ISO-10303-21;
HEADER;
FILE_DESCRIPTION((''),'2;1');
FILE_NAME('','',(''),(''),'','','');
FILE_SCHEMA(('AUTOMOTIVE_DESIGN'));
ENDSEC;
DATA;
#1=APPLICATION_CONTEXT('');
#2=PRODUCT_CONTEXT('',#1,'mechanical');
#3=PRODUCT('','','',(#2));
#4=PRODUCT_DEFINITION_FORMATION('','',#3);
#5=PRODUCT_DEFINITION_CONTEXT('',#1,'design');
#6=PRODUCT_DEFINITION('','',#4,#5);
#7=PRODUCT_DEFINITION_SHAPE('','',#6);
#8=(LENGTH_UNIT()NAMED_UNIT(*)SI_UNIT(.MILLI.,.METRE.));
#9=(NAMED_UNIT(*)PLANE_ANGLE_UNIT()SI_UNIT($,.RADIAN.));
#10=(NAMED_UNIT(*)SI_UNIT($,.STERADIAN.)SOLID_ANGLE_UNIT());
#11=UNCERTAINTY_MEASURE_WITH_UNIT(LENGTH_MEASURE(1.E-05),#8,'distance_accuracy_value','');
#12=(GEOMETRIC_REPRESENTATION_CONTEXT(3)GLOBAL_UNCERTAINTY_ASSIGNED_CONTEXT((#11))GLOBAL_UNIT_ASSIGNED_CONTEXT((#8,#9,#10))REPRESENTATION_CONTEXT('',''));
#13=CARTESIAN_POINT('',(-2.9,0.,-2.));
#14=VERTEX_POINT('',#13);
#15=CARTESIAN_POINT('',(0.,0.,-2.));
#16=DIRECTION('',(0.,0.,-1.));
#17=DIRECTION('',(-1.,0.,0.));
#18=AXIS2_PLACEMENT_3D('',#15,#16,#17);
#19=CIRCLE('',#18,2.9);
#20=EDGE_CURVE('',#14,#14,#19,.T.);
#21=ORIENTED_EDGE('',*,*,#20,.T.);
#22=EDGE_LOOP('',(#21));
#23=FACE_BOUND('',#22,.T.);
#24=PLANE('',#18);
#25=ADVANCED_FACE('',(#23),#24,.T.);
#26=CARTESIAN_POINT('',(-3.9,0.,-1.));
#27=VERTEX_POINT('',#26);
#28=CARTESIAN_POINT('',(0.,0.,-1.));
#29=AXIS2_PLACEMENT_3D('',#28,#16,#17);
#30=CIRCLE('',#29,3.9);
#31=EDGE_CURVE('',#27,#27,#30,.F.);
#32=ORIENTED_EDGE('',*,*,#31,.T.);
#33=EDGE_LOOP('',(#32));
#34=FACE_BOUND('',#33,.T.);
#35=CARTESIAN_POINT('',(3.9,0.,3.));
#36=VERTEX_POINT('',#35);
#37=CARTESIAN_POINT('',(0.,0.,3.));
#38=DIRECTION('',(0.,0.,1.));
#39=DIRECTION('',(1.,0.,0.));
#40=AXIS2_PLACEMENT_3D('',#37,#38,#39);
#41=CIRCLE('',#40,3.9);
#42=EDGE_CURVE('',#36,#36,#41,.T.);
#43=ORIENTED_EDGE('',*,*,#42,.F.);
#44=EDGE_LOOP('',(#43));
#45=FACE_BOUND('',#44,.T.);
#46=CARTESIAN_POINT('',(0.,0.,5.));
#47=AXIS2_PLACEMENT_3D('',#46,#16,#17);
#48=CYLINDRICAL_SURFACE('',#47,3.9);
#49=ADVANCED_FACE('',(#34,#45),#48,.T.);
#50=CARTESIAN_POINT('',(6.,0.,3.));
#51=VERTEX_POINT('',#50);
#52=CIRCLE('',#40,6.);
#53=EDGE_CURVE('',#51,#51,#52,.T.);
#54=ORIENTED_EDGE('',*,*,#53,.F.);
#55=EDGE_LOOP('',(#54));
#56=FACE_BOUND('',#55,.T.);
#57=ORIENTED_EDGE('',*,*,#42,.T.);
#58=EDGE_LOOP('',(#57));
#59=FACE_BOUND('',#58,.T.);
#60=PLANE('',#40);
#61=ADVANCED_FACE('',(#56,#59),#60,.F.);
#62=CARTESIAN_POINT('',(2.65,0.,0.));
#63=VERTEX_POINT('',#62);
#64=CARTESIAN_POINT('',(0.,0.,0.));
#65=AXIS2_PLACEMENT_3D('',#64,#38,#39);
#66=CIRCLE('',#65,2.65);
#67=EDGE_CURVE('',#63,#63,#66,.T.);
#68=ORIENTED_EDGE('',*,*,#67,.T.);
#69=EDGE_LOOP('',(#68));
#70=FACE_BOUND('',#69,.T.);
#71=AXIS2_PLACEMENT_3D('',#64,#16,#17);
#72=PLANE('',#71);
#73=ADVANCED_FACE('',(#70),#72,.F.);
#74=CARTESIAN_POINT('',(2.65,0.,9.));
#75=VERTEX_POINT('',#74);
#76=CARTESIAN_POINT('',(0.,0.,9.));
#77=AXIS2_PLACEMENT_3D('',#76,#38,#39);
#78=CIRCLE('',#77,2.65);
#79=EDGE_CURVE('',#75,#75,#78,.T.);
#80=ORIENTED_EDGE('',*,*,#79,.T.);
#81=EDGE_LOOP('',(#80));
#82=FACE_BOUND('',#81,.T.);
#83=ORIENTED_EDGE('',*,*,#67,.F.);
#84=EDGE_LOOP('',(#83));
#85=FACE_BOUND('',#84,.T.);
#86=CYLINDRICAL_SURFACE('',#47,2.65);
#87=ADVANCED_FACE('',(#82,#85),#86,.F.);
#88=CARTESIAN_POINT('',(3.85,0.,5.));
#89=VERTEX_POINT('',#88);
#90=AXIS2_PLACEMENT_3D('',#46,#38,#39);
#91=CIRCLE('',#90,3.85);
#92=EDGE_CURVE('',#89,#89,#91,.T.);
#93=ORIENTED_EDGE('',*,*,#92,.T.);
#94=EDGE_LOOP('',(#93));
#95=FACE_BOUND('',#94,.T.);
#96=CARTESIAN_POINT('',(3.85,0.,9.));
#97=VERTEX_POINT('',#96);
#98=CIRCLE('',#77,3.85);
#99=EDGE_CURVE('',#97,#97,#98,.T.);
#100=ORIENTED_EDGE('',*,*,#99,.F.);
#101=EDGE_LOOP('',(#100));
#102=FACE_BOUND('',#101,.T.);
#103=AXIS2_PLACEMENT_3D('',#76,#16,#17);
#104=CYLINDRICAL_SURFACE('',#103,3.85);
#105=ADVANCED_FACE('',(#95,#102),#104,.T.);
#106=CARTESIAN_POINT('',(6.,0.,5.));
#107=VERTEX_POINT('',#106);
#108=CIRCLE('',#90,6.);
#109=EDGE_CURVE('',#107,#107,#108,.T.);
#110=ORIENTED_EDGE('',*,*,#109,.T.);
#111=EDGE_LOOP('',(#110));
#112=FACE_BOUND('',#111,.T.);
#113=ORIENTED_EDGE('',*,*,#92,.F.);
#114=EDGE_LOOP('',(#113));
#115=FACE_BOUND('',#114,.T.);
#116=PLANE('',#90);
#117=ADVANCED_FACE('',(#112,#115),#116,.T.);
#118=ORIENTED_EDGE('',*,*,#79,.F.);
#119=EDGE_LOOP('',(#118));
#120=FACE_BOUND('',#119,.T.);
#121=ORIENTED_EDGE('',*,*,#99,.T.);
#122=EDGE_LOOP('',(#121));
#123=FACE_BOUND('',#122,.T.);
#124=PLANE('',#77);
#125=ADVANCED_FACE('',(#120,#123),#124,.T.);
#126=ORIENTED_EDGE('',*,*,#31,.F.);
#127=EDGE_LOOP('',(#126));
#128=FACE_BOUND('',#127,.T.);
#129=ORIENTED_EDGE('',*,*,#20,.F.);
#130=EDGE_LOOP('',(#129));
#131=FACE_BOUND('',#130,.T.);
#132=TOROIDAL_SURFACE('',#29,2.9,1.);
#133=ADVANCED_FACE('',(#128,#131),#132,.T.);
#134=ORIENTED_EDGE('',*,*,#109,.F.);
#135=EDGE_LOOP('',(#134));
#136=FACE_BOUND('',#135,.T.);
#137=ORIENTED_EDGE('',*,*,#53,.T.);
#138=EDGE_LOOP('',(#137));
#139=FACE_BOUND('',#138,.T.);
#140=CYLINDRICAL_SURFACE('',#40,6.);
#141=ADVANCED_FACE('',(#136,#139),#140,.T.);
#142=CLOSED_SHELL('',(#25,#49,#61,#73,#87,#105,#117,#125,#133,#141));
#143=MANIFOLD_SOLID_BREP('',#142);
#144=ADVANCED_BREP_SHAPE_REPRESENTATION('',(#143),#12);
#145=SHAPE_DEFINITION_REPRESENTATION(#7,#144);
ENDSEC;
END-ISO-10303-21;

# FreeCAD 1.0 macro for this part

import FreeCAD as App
import Part
import Sketcher
from FreeCAD import Vector


def edges_at(feature, points):
    """Names of the edges that pass closest to the given points."""
    edges = feature.Shape.Edges
    near = lambda p: min(range(len(edges)), key=lambda i: edges[i].distToShape(Part.Vertex(*p))[0])
    return sorted({f"Edge{near(p) + 1}" for p in points})

doc = App.newDocument("Part")
body = doc.addObject("PartDesign::Body", "Body")

sketch1 = doc.addObject("Sketcher::SketchObject", "Sketch")
body.addObject(sketch1)
sketch1.AttachmentSupport = (doc.XY_Plane, [""])
sketch1.MapMode = "FlatFace"
sketch1.addGeometry(Part.Circle(Vector(0, 0, 0), Vector(0, 0, 1), 3.9), False)
sketch1.addGeometry(Part.Circle(Vector(0, 0, 0), Vector(0, 0, 1), 2.6), False)
sketch1.addConstraint(Sketcher.Constraint("Coincident", 0, 3, -1, 1))
sketch1.addConstraint(Sketcher.Constraint("Coincident", 1, 3, -1, 1))
sketch1.addConstraint(Sketcher.Constraint("Diameter", 0, 7.8))
sketch1.addConstraint(Sketcher.Constraint("Diameter", 1, 5.3))
pad1 = doc.addObject("PartDesign::Pad", "Pad")
body.addObject(pad1)
pad1.Profile = sketch1
pad1.Length = 5

sketch2 = doc.addObject("Sketcher::SketchObject", "Sketch001")
body.addObject(sketch2)
sketch2.AttachmentSupport = (doc.XY_Plane, [""])
sketch2.MapMode = "FlatFace"
sketch2.AttachmentOffset = App.Placement(Vector(0, 0, 3), App.Rotation())
sketch2.addGeometry(Part.Circle(Vector(0, 0, 0), Vector(0, 0, 1), 6), False)
sketch2.addGeometry(Part.Circle(Vector(0, 0, 0), Vector(0, 0, 1), 2.6), False)
sketch2.addConstraint(Sketcher.Constraint("Coincident", 0, 3, -1, 1))
sketch2.addConstraint(Sketcher.Constraint("Coincident", 1, 3, -1, 1))
sketch2.addConstraint(Sketcher.Constraint("Diameter", 0, 12.0))
sketch2.addConstraint(Sketcher.Constraint("Diameter", 1, 5.3))
pad2 = doc.addObject("PartDesign::Pad", "Pad001")
body.addObject(pad2)
pad2.Profile = sketch2
pad2.Length = 2

sketch3 = doc.addObject("Sketcher::SketchObject", "Sketch002")
body.addObject(sketch3)
sketch3.AttachmentSupport = (doc.XY_Plane, [""])
sketch3.MapMode = "FlatFace"
sketch3.AttachmentOffset = App.Placement(Vector(0, 0, -2), App.Rotation())
sketch3.addGeometry(Part.Circle(Vector(0, 0, 0), Vector(0, 0, 1), 3.9), False)
sketch3.addConstraint(Sketcher.Constraint("Coincident", 0, 3, -1, 1))
sketch3.addConstraint(Sketcher.Constraint("Diameter", 0, 7.8))
pad3 = doc.addObject("PartDesign::Pad", "Pad002")
body.addObject(pad3)
pad3.Profile = sketch3
pad3.Length = 2
doc.recompute()

fillet = doc.addObject("PartDesign::Fillet", "Fillet")
body.addObject(fillet)
fillet.Base = (pad3, edges_at(pad3, [(3.9, 0, -2)]))
fillet.Radius = 1

sketch4 = doc.addObject("Sketcher::SketchObject", "Sketch003")
body.addObject(sketch4)
sketch4.AttachmentSupport = (doc.XY_Plane, [""])
sketch4.MapMode = "FlatFace"
sketch4.AttachmentOffset = App.Placement(Vector(0, 0, 5), App.Rotation())
sketch4.addGeometry(Part.Circle(Vector(0, 0, 0), Vector(0, 0, 1), 3.9), False)
sketch4.addGeometry(Part.Circle(Vector(0, 0, 0), Vector(0, 0, 1), 2.6), False)
sketch4.addConstraint(Sketcher.Constraint("Coincident", 0, 3, -1, 1))
sketch4.addConstraint(Sketcher.Constraint("Coincident", 1, 3, -1, 1))
sketch4.addConstraint(Sketcher.Constraint("Diameter", 0, 7.7))
sketch4.addConstraint(Sketcher.Constraint("Diameter", 1, 5.3))
pad4 = doc.addObject("PartDesign::Pad", "Pad003")
body.addObject(pad4)
pad4.Profile = sketch4
pad4.Length = 4

doc.recompute()
